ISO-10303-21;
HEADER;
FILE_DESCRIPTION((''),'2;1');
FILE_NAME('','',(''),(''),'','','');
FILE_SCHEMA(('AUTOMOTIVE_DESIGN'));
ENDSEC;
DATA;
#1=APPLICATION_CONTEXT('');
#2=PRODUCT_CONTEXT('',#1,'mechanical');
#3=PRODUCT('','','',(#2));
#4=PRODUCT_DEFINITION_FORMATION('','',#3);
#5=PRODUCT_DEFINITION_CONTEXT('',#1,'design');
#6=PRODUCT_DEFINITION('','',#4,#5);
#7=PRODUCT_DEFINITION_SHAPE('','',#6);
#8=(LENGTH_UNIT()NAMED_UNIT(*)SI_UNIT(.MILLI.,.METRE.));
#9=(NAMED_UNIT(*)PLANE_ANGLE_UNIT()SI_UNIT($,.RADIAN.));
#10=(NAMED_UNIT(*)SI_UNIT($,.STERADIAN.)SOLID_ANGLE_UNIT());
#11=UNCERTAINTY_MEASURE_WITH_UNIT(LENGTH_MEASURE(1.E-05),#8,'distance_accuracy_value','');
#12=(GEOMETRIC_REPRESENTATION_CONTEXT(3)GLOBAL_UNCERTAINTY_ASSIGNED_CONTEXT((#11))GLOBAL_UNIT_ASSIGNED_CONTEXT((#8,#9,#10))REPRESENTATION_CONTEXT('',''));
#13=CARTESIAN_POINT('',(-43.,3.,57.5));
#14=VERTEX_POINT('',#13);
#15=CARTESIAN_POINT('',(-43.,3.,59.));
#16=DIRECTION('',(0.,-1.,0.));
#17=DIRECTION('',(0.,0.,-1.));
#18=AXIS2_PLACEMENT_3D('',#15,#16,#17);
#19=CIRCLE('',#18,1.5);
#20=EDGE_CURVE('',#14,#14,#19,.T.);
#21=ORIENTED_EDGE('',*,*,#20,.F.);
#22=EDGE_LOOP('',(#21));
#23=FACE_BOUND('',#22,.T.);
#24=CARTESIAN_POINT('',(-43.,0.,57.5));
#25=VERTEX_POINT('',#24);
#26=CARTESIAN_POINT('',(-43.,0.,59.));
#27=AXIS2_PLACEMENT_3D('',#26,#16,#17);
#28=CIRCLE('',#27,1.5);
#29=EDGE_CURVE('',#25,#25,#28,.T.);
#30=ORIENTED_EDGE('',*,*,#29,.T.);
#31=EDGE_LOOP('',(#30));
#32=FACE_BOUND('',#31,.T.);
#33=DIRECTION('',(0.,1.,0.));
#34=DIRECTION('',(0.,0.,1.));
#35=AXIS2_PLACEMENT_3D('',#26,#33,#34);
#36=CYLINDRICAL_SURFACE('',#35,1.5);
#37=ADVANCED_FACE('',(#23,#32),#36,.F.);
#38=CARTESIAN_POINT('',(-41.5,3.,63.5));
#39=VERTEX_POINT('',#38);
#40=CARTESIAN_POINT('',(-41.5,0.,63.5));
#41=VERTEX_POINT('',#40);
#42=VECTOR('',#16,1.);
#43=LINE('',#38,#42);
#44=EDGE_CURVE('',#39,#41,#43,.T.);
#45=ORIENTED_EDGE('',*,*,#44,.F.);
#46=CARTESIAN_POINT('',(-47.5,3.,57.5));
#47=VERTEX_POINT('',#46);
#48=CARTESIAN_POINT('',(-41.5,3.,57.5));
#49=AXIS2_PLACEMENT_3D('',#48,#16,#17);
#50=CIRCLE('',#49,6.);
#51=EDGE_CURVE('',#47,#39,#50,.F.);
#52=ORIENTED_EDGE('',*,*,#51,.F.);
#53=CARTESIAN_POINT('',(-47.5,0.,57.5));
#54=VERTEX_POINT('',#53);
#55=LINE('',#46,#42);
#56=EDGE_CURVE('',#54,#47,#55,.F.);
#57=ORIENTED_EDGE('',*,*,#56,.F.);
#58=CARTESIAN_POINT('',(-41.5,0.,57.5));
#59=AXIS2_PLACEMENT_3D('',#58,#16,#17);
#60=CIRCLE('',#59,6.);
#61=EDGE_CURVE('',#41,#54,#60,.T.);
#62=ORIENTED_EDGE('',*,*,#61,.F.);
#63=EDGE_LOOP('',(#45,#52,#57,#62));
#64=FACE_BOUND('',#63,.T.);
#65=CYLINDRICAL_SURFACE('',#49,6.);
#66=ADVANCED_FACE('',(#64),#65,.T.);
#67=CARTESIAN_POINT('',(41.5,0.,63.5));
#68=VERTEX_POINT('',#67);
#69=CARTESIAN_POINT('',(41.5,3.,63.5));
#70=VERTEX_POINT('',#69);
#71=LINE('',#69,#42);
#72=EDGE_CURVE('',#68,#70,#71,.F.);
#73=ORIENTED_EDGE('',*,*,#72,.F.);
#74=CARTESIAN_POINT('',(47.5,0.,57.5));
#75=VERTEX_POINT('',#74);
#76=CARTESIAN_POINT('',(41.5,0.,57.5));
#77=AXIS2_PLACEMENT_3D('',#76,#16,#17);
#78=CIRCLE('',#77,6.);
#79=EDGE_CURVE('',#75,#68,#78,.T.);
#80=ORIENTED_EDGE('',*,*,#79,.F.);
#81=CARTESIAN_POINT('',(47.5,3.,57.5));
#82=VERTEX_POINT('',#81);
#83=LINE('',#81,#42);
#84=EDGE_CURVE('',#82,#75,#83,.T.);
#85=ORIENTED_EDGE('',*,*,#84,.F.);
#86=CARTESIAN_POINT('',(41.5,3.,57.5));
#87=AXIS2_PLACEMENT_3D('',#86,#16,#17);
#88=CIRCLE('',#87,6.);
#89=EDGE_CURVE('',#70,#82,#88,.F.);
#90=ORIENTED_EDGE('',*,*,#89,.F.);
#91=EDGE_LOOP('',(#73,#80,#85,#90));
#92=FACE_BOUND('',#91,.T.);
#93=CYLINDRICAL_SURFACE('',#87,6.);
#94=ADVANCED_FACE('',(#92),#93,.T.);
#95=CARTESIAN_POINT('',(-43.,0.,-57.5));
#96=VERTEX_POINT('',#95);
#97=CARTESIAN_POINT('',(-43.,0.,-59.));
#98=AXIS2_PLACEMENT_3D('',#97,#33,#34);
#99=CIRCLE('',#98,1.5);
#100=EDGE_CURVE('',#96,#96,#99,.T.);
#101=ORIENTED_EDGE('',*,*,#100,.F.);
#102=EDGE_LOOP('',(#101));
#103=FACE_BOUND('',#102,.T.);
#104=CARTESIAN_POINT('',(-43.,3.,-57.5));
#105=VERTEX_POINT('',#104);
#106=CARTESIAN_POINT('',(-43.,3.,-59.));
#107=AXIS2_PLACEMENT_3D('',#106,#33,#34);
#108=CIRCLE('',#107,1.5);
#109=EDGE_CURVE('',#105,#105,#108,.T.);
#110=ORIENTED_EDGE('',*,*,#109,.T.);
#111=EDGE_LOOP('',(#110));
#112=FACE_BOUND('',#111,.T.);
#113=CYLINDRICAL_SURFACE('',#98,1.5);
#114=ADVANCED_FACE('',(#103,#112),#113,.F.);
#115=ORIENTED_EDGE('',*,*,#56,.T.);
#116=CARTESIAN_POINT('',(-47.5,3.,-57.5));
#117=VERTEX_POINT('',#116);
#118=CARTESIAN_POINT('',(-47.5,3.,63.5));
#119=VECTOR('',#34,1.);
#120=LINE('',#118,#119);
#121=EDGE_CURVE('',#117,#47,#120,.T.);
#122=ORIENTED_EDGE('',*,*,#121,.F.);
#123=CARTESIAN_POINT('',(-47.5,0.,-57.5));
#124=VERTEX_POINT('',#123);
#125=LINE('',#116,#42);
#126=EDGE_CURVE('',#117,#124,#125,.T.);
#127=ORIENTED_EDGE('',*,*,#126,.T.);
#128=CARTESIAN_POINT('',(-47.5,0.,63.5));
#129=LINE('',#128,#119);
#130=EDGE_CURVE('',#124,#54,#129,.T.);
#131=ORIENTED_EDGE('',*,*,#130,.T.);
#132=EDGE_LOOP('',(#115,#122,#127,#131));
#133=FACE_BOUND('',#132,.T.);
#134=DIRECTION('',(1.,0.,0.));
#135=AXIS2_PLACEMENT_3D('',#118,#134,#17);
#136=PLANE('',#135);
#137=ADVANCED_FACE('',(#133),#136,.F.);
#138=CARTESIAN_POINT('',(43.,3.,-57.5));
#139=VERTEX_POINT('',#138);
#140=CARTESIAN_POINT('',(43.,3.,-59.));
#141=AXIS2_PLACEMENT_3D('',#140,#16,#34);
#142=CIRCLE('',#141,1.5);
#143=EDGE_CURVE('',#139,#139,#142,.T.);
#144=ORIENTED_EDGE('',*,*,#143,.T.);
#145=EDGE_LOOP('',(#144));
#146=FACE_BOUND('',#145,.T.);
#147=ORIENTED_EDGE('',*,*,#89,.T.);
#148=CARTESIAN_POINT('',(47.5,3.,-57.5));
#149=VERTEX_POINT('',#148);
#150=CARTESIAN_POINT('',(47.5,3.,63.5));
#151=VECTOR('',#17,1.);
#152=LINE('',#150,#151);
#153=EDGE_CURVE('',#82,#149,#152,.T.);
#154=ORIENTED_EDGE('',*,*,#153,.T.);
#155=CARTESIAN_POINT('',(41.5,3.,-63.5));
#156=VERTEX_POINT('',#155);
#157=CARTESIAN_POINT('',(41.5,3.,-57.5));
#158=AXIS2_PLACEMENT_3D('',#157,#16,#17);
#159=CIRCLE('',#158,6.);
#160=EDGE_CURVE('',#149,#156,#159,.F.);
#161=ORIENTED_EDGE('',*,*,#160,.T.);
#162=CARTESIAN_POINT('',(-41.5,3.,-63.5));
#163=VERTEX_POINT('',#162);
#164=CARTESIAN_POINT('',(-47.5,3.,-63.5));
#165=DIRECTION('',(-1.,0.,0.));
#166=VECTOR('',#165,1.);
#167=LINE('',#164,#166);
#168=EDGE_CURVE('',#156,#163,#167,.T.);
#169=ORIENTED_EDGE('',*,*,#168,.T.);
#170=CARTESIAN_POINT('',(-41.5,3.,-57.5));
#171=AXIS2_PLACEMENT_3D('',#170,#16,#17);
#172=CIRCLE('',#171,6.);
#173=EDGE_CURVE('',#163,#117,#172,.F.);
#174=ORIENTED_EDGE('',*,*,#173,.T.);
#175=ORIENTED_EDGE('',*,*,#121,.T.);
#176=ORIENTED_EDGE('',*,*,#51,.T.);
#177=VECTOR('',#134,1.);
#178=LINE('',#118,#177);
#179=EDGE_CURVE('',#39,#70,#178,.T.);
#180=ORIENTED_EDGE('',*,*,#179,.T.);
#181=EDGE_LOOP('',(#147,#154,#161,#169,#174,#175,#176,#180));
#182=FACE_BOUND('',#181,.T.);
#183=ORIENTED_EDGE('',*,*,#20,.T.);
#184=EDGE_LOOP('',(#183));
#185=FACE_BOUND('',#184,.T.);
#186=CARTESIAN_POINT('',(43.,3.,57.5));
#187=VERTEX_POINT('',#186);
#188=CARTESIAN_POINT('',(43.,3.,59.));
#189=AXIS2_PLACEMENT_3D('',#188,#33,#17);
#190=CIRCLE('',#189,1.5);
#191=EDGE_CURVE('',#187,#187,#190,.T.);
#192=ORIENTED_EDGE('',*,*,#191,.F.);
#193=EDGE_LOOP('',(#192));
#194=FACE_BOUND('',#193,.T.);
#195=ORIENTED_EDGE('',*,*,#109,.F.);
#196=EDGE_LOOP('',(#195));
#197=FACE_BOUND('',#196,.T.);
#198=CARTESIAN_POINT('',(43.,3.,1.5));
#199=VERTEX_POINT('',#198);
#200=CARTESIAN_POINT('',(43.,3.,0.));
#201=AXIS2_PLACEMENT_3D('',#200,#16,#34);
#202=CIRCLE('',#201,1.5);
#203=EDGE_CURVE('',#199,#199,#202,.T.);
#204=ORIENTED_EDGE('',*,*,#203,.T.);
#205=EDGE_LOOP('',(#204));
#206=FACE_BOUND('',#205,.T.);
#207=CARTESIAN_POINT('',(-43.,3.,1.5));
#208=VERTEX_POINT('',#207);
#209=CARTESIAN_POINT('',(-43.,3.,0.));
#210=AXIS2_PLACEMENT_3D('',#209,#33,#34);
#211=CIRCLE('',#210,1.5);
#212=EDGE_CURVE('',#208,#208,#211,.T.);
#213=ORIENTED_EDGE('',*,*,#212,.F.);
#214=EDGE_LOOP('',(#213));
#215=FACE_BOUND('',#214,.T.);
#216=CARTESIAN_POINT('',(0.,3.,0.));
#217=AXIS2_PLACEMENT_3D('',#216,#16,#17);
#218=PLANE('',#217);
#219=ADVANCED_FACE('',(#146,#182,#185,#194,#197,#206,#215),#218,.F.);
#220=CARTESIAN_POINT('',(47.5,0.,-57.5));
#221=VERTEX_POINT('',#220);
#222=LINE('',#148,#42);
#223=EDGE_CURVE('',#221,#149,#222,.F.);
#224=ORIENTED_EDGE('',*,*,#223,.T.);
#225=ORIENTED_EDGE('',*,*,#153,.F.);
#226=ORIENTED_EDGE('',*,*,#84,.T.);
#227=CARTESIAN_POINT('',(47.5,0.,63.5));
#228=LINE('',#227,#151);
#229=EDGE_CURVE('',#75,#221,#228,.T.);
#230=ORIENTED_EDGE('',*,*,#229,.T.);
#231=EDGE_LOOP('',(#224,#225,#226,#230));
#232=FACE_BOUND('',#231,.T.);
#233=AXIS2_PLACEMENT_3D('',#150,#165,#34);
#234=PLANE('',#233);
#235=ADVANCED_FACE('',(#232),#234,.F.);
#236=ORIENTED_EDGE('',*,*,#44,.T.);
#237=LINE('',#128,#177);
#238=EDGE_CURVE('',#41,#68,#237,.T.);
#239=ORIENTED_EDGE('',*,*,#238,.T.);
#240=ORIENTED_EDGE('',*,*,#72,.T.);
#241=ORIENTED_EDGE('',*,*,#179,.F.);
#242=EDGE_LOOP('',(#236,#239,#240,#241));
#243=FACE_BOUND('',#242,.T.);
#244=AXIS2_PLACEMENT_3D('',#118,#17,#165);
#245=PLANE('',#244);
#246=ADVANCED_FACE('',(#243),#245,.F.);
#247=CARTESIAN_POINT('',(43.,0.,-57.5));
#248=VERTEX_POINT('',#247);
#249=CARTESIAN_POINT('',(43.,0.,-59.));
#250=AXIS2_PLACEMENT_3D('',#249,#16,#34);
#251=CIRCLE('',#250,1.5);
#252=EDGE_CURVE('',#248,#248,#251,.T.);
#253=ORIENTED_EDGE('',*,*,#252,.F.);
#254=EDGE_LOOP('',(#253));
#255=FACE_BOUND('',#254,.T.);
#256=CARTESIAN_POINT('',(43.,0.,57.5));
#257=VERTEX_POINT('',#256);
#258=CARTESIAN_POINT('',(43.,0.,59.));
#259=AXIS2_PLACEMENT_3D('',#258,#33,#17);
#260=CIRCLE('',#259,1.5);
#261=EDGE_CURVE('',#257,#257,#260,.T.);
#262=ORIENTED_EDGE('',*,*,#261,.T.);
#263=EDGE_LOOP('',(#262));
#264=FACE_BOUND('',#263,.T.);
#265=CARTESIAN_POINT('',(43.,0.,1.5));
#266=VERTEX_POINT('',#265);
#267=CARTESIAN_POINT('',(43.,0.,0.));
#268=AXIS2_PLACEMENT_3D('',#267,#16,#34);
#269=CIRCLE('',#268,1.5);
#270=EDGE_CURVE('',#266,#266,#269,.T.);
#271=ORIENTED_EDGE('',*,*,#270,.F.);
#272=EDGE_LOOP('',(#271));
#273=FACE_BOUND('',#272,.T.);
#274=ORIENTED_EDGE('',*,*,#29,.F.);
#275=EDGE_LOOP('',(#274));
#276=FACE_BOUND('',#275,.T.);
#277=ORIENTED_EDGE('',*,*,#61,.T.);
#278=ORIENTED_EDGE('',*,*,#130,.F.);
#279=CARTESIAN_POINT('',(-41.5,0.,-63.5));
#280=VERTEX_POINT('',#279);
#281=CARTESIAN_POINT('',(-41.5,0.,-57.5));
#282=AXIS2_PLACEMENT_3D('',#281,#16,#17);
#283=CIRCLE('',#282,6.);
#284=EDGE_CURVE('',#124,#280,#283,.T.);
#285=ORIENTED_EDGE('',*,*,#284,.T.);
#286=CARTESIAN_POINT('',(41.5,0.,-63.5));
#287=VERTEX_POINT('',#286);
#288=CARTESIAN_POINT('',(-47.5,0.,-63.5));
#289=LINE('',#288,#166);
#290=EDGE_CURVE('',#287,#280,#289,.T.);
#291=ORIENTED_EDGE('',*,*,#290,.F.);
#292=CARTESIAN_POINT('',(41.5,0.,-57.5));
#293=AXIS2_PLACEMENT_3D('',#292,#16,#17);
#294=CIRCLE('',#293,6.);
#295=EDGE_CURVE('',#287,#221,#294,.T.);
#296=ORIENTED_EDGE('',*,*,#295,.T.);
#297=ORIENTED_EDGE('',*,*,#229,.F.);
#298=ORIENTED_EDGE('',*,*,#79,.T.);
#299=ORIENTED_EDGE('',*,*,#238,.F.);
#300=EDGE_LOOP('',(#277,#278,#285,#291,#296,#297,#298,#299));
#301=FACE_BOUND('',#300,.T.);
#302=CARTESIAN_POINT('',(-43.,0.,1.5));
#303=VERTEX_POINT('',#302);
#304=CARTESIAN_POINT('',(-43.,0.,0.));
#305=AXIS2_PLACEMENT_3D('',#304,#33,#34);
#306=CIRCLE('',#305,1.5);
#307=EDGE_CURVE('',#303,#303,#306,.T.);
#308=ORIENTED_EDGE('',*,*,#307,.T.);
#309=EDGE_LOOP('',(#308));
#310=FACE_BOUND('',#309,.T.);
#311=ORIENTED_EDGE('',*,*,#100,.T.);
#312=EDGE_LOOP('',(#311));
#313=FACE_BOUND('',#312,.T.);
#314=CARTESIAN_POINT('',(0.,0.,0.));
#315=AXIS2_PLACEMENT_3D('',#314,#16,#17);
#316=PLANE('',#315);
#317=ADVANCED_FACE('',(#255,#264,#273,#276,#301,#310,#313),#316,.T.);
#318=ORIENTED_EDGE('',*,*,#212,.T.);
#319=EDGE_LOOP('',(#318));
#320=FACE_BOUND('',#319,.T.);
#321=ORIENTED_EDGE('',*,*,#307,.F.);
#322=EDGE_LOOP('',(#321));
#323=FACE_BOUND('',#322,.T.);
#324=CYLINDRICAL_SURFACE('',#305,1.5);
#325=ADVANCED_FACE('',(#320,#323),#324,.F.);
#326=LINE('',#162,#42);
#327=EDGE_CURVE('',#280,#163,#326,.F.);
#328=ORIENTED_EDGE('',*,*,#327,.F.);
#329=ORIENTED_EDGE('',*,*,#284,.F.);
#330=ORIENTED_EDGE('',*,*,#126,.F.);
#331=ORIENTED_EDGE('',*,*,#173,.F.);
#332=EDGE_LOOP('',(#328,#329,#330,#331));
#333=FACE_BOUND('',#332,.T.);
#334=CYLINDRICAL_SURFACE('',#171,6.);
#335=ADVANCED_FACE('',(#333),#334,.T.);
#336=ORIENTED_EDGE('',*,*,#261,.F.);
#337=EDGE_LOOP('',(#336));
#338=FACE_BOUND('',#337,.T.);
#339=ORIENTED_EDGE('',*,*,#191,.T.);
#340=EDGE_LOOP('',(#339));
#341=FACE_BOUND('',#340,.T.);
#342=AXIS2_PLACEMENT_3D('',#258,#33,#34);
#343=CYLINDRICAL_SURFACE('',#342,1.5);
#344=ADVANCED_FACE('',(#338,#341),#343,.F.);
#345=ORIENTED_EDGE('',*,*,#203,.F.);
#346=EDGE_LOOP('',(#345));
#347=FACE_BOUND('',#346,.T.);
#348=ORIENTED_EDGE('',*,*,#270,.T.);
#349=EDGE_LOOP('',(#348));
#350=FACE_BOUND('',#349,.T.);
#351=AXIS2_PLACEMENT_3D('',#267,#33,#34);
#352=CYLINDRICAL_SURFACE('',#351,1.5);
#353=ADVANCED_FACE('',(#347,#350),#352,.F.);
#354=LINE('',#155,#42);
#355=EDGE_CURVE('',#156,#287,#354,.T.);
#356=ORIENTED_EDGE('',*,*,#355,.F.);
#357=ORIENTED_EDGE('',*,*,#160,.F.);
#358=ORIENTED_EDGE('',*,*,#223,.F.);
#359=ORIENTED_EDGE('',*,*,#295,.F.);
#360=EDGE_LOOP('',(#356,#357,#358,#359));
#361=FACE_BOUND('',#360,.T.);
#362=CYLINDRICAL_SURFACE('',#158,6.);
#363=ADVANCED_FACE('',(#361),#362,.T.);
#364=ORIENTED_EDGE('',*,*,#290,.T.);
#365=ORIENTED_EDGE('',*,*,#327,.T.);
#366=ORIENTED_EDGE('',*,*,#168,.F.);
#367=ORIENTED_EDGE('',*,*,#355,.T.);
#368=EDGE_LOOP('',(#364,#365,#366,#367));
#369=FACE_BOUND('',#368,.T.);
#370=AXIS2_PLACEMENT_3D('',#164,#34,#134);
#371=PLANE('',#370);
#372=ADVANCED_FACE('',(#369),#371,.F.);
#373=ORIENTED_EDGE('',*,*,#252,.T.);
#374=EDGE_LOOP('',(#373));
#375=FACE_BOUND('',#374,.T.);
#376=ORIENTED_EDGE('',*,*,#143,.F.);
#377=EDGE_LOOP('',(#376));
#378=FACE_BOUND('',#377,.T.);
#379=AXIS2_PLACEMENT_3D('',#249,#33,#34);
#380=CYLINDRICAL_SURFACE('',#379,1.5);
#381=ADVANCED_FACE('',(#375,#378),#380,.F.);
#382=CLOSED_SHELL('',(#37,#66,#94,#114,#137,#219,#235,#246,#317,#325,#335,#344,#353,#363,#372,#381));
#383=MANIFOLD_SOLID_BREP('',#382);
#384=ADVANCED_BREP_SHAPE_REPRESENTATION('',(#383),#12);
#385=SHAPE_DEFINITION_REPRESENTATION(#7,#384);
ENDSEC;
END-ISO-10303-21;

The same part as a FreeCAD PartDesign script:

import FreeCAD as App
import Part
import Sketcher
from FreeCAD import Vector
Q = App.Units.Quantity


def edges_at(feature, points):
    """Names of the edges that pass closest to the given points."""
    edges = feature.Shape.Edges
    near = lambda p: min(range(len(edges)), key=lambda i: edges[i].distToShape(Part.Vertex(*p))[0])
    return sorted({f"Edge{near(p) + 1}" for p in points})

doc = App.newDocument("Part")
body = doc.addObject("PartDesign::Body", "Body")

# Sketch on XZ plane
sketch1 = doc.addObject("Sketcher::SketchObject", "Sketch")
body.addObject(sketch1)
sketch1.AttachmentSupport = (doc.XZ_Plane, [""])
sketch1.MapMode = "FlatFace"
sketch1.addGeometry([
    Part.LineSegment(Vector(-47.5, -63.5, 0), Vector(-47.5, 63.5, 0)),
    Part.LineSegment(Vector(-47.5, 63.5, 0), Vector(47.5, 63.5, 0)),
    Part.LineSegment(Vector(47.5, 63.5, 0), Vector(47.5, -63.5, 0)),
    Part.LineSegment(Vector(47.5, -63.5, 0), Vector(-47.5, -63.5, 0)),
], False)
sketch1.addConstraint([
    Sketcher.Constraint("Coincident", 0, 2, 1, 1),
    Sketcher.Constraint("Coincident", 1, 2, 2, 1),
    Sketcher.Constraint("Coincident", 2, 2, 3, 1),
    Sketcher.Constraint("Coincident", 3, 2, 0, 1),
    Sketcher.Constraint("Vertical", 0),
    Sketcher.Constraint("Horizontal", 1),
    Sketcher.Constraint("Vertical", 2),
    Sketcher.Constraint("Horizontal", 3),
    Sketcher.Constraint("Symmetric", 0, 2, 2, 2, -1, 1),
    Sketcher.Constraint("DistanceX", 1, 1, 1, 2, Q("95 mm")),
    Sketcher.Constraint("DistanceY", 0, 1, 0, 2, Q("127 mm")),
])
pad1 = doc.addObject("PartDesign::Pad", "Pad")
body.addObject(pad1)
pad1.Profile = sketch1
pad1.Length = 3
pad1.Reversed = True
doc.recompute()

fillet = doc.addObject("PartDesign::Fillet", "Fillet")
body.addObject(fillet)
fillet.Base = (pad1, edges_at(pad1, [
    (47.5, 1.5, 63.5),
    (-47.5, 1.5, 63.5),
    (-47.5, 1.5, -63.5),
    (47.5, 1.5, -63.5),
]))
fillet.Radius = 6

# Sketch on XZ plane
sketch2 = doc.addObject("Sketcher::SketchObject", "Sketch001")
body.addObject(sketch2)
sketch2.AttachmentSupport = (doc.XZ_Plane, [""])
sketch2.MapMode = "FlatFace"
sketch2.AttachmentOffset = App.Placement(Vector(0, 0, -3), App.Rotation())
sketch2.addGeometry(Part.Circle(Vector(-43, -59, 0), Vector(0, 0, 1), 1.5), False)
sketch2.addConstraint([
    Sketcher.Constraint("Diameter", 0, Q("3 mm")),
    Sketcher.Constraint("DistanceX", 0, 3, -1, 1, Q("43 mm")),
    Sketcher.Constraint("DistanceY", 0, 3, -1, 1, Q("59 mm")),
])
pocket1 = doc.addObject("PartDesign::Pocket", "Pocket")
body.addObject(pocket1)
pocket1.Profile = sketch2
pocket1.Type = "ThroughAll"
pocket1.Reversed = True
doc.recompute()

mirrored = doc.addObject("PartDesign::Mirrored", "Mirrored")
body.addObject(mirrored)
mirrored.Originals = [pocket1]
mirrored.MirrorPlane = (doc.XY_Plane, [""])
body.Tip = mirrored
doc.recompute()

linearpattern = doc.addObject("PartDesign::LinearPattern", "LinearPattern")
body.addObject(linearpattern)
linearpattern.Originals = [pocket1]
linearpattern.Direction = (doc.Z_Axis, [""])
linearpattern.Mode = "offset"
linearpattern.Offset = 59
linearpattern.Occurrences = 2
body.Tip = linearpattern
doc.recompute()

mirrored2 = doc.addObject("PartDesign::Mirrored", "Mirrored001")
body.addObject(mirrored2)
mirrored2.Originals = [pocket1]
mirrored2.MirrorPlane = (doc.YZ_Plane, [""])
body.Tip = mirrored2

# Sketch on XZ plane
sketch3 = doc.addObject("Sketcher::SketchObject", "Sketch002")
body.addObject(sketch3)
sketch3.AttachmentSupport = (doc.XZ_Plane, [""])
sketch3.MapMode = "FlatFace"
sketch3.AttachmentOffset = App.Placement(Vector(0, 0, -3), App.Rotation())
sketch3.addGeometry(Part.Circle(Vector(43, 59, 0), Vector(0, 0, 1), 1.5), False)
sketch3.addConstraint([
    Sketcher.Constraint("Diameter", 0, Q("3 mm")),
    Sketcher.Constraint("DistanceX", -1, 1, 0, 3, Q("43 mm")),
    Sketcher.Constraint("DistanceY", -1, 1, 0, 3, Q("59 mm")),
])
pocket2 = doc.addObject("PartDesign::Pocket", "Pocket001")
body.addObject(pocket2)
pocket2.Profile = sketch3
pocket2.Type = "ThroughAll"
pocket2.Reversed = True

# Sketch on XZ plane
sketch4 = doc.addObject("Sketcher::SketchObject", "Sketch003")
body.addObject(sketch4)
sketch4.AttachmentSupport = (doc.XZ_Plane, [""])
sketch4.MapMode = "FlatFace"
sketch4.AttachmentOffset = App.Placement(Vector(0, 0, -3), App.Rotation())
sketch4.addGeometry(Part.Circle(Vector(43, 0, 0), Vector(0, 0, 1), 1.5), False)
sketch4.addConstraint([
    Sketcher.Constraint("PointOnObject", 0, 3, -1),
    Sketcher.Constraint("Diameter", 0, Q("3 mm")),
    Sketcher.Constraint("DistanceX", -1, 1, 0, 3, Q("43 mm")),
])
pocket3 = doc.addObject("PartDesign::Pocket", "Pocket002")
body.addObject(pocket3)
pocket3.Profile = sketch4
pocket3.Type = "ThroughAll"
pocket3.Reversed = True

doc.recompute()
